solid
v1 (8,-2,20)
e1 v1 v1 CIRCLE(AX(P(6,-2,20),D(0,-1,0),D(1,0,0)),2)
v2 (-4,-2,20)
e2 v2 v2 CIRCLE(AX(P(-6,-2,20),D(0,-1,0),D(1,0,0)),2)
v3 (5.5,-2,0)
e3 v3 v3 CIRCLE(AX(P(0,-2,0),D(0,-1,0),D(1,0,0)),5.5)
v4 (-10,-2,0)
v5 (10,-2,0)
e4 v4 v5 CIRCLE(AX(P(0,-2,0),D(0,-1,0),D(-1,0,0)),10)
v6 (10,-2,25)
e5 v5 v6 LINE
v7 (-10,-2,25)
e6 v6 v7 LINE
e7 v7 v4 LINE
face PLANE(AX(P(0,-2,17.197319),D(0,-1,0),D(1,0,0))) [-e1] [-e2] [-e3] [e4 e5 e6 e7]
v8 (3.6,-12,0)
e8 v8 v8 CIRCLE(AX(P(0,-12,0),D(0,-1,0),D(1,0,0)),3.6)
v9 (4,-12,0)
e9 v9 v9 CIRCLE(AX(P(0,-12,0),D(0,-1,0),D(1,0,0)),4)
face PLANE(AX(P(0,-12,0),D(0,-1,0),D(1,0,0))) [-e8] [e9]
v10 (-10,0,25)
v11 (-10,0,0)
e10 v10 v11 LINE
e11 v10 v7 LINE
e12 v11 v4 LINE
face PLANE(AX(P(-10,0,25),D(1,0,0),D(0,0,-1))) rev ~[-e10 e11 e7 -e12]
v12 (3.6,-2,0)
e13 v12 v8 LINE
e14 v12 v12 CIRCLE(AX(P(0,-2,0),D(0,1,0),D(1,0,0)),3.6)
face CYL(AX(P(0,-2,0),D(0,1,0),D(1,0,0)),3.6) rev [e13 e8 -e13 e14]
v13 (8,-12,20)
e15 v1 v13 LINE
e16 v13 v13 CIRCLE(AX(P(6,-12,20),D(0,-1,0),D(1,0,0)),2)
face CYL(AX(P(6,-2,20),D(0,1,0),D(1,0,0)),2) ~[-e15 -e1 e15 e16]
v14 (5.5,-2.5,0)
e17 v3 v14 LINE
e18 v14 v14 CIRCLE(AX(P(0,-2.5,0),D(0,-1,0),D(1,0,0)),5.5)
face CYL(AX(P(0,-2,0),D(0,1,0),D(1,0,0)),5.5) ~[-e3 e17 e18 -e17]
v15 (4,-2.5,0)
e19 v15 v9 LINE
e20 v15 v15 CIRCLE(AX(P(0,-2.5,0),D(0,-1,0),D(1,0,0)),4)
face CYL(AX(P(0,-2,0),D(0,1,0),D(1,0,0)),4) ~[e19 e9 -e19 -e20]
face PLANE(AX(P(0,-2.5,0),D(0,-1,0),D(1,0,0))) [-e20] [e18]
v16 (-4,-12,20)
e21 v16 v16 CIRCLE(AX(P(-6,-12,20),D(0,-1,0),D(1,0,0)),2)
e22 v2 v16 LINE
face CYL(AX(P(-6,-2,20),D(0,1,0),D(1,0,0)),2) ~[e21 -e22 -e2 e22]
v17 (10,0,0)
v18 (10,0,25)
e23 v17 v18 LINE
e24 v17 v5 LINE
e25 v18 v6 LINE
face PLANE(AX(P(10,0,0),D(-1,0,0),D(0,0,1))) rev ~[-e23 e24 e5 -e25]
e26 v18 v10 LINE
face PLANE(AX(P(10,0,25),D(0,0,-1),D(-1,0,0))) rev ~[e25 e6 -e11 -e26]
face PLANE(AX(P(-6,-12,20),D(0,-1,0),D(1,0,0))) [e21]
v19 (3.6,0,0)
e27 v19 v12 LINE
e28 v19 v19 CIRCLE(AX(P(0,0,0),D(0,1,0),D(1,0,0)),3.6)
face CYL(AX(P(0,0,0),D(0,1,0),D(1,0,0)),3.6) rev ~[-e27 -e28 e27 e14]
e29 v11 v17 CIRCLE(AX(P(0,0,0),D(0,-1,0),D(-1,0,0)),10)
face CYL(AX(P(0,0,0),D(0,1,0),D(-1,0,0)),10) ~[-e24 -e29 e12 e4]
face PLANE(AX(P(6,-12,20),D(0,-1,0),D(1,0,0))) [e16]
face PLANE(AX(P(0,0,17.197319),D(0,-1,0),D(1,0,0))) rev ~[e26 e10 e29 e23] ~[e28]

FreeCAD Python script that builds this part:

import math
import FreeCAD as App
import Part
import Sketcher
from FreeCAD import Vector

doc = App.newDocument("Part")
body = doc.addObject("PartDesign::Body", "Body")

# Sketch on XZ plane
sketch1 = body.newObject("Sketcher::SketchObject", "Sketch")
sketch1.AttachmentSupport = (doc.getObject("XZ_Plane"), [""])
sketch1.MapMode = "FlatFace"
sketch1.addGeometry(Part.LineSegment(Vector(10, 25, 0), Vector(-10, 25, 0)), False)
sketch1.addGeometry(Part.LineSegment(Vector(-10, 25, 0), Vector(-10, 0, 0)), False)
sketch1.addGeometry(Part.ArcOfCircle(Part.Circle(Vector(0, 0, 0), Vector(0, 0, 1), 10), math.radians(180), math.radians(360)), False)
sketch1.addGeometry(Part.LineSegment(Vector(10, 0, 0), Vector(10, 25, 0)), False)
sketch1.addGeometry(Part.Circle(Vector(0, 0, 0), Vector(0, 0, 1), 3.6), False)
sketch1.addConstraint(Sketcher.Constraint("Coincident", 0, 2, 1, 1))
sketch1.addConstraint(Sketcher.Constraint("Tangent", 1, 2, 2, 1))
sketch1.addConstraint(Sketcher.Constraint("Tangent", 2, 2, 3, 1))
sketch1.addConstraint(Sketcher.Constraint("Coincident", 3, 2, 0, 1))
sketch1.addConstraint(Sketcher.Constraint("Horizontal", 0))
sketch1.addConstraint(Sketcher.Constraint("Vertical", 1))
sketch1.addConstraint(Sketcher.Constraint("Vertical", 3))
sketch1.addConstraint(Sketcher.Constraint("Coincident", 2, 3, -1, 1))
sketch1.addConstraint(Sketcher.Constraint("Coincident", 4, 3, -1, 1))
sketch1.addConstraint(Sketcher.Constraint("Radius", 2, 10.0))
sketch1.addConstraint(Sketcher.Constraint("Diameter", 4, 7.2))
sketch1.addConstraint(Sketcher.Constraint("DistanceY", 1, 2, 1, 1, 25.0))
pad1 = body.newObject("PartDesign::Pad", "Pad")
pad1.Profile = sketch1
pad1.Length = 2

# Sketch on XZ plane
sketch2 = body.newObject("Sketcher::SketchObject", "Sketch001")
sketch2.AttachmentSupport = (doc.getObject("XZ_Plane"), [""])
sketch2.MapMode = "FlatFace"
sketch2.AttachmentOffset = App.Placement(Vector(0, 0, 2), App.Rotation())
sketch2.addGeometry(Part.Circle(Vector(0, 0, 0), Vector(0, 0, 1), 4), False)
sketch2.addGeometry(Part.Circle(Vector(0, 0, 0), Vector(0, 0, 1), 3.6), False)
sketch2.addConstraint(Sketcher.Constraint("Coincident", 0, 3, -1, 1))
sketch2.addConstraint(Sketcher.Constraint("Coincident", 1, 3, -1, 1))
sketch2.addConstraint(Sketcher.Constraint("Diameter", 0, 8.0))
sketch2.addConstraint(Sketcher.Constraint("Diameter", 1, 7.2))
pad2 = body.newObject("PartDesign::Pad", "Pad001")
pad2.Profile = sketch2
pad2.Length = 10

# Sketch on XZ plane
sketch3 = body.newObject("Sketcher::SketchObject", "Sketch002")
sketch3.AttachmentSupport = (doc.getObject("XZ_Plane"), [""])
sketch3.MapMode = "FlatFace"
sketch3.AttachmentOffset = App.Placement(Vector(0, 0, 2), App.Rotation())
sketch3.addGeometry(Part.Circle(Vector(-6, 20, 0), Vector(0, 0, 1), 2), False)
sketch3.addGeometry(Part.Circle(Vector(6, 20, 0), Vector(0, 0, 1), 2), False)
sketch3.addConstraint(Sketcher.Constraint("Equal", 0, 1))
sketch3.addConstraint(Sketcher.Constraint("Symmetric", 0, 3, 1, 3, -2))
sketch3.addConstraint(Sketcher.Constraint("Diameter", 0, 4.0))
sketch3.addConstraint(Sketcher.Constraint("DistanceX", 0, 3, -1, 1, 6.0))
sketch3.addConstraint(Sketcher.Constraint("DistanceY", -1, 1, 0, 3, 20.0))
pad3 = body.newObject("PartDesign::Pad", "Pad002")
pad3.Profile = sketch3
pad3.Length = 10

# Sketch on XZ plane
sketch4 = body.newObject("Sketcher::SketchObject", "Sketch003")
sketch4.AttachmentSupport = (doc.getObject("XZ_Plane"), [""])
sketch4.MapMode = "FlatFace"
sketch4.AttachmentOffset = App.Placement(Vector(0, 0, 2), App.Rotation())
sketch4.addGeometry(Part.Circle(Vector(0, 0, 0), Vector(0, 0, 1), 5.5), False)
sketch4.addGeometry(Part.Circle(Vector(0, 0, 0), Vector(0, 0, 1), 4), False)
sketch4.addConstraint(Sketcher.Constraint("Coincident", 0, 3, -1, 1))
sketch4.addConstraint(Sketcher.Constraint("Coincident", 1, 3, -1, 1))
sketch4.addConstraint(Sketcher.Constraint("Diameter", 0, 11.0))
sketch4.addConstraint(Sketcher.Constraint("Diameter", 1, 8.0))
pad4 = body.newObject("PartDesign::Pad", "Pad003")
pad4.Profile = sketch4
pad4.Length = 0.5

doc.recompute()
